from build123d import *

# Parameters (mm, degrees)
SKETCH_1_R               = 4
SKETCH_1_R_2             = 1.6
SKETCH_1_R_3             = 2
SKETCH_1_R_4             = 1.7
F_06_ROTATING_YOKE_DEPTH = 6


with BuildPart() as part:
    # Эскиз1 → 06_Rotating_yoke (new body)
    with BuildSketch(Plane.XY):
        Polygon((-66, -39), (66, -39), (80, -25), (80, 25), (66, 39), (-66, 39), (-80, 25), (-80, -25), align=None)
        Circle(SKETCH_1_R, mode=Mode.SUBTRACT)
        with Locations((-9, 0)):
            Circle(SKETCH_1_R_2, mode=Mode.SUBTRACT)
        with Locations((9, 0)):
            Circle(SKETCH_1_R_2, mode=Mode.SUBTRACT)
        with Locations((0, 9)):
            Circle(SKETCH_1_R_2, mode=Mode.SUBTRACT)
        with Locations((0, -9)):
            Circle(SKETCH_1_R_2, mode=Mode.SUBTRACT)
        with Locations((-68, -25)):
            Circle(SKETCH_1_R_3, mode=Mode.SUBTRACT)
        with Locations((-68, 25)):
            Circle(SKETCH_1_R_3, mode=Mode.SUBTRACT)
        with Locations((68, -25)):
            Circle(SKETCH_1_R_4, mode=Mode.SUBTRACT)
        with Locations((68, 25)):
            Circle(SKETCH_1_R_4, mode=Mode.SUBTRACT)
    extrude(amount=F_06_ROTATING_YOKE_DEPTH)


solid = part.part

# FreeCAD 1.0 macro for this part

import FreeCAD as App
import Part
import Sketcher
from FreeCAD import Vector
Q = App.Units.Quantity


def add_polygon(sketch, points):
    """Adds a closed chain of lines whose ends are joined by coincident constraints."""
    first, n = sketch.GeometryCount, len(points)
    for a, b in zip(points, points[1:] + points[:1]):
        sketch.addGeometry(Part.LineSegment(App.Vector(*a, 0), App.Vector(*b, 0)), False)
    for i in range(n):
        sketch.addConstraint(Sketcher.Constraint("Coincident", first + i, 2, first + (i + 1) % n, 1))

doc = App.newDocument("Part")
body = doc.addObject("PartDesign::Body", "Body")

# Sketch on XY plane
sketch1 = body.newObject("Sketcher::SketchObject", "Sketch")
sketch1.AttachmentSupport = (doc.getObject("XY_Plane"), [""])
sketch1.MapMode = "FlatFace"
add_polygon(sketch1, [(-66, -39), (66, -39), (80, -25), (80, 25), (66, 39), (-66, 39), (-80, 25), (-80, -25)])  # lines 0-7
sketch1.addGeometry(Part.Circle(Vector(-68, -25, 0), Vector(0, 0, 1), 2), False)  # 8
sketch1.addGeometry(Part.Circle(Vector(68, -25, 0), Vector(0, 0, 1), 1.7), False)  # 9
sketch1.addGeometry(Part.Circle(Vector(0, -9, 0), Vector(0, 0, 1), 1.6), False)  # 10
sketch1.addGeometry(Part.Circle(Vector(-9, 0, 0), Vector(0, 0, 1), 1.6), False)  # 11
sketch1.addGeometry(Part.Circle(Vector(-68, 25, 0), Vector(0, 0, 1), 2), False)  # 12
sketch1.addGeometry(Part.Circle(Vector(0, 0, 0), Vector(0, 0, 1), 4), False)  # 13
sketch1.addGeometry(Part.Circle(Vector(9, 0, 0), Vector(0, 0, 1), 1.6), False)  # 14
sketch1.addGeometry(Part.Circle(Vector(0, 9, 0), Vector(0, 0, 1), 1.6), False)  # 15
sketch1.addGeometry(Part.Circle(Vector(68, 25, 0), Vector(0, 0, 1), 1.7), False)  # 16
sketch1.addConstraint([
    Sketcher.Constraint("Horizontal", 0),
    Sketcher.Constraint("Vertical", 2),
    Sketcher.Constraint("Horizontal", 4),
    Sketcher.Constraint("Vertical", 6),
    Sketcher.Constraint("Coincident", 13, 3, -1, 1),
    Sketcher.Constraint("Equal", 10, 11),
    Sketcher.Constraint("Equal", 8, 12),
    Sketcher.Constraint("Equal", 11, 14),
    Sketcher.Constraint("Equal", 14, 15),
    Sketcher.Constraint("Equal", 9, 16),
    Sketcher.Constraint("Symmetric", 9, 3, 12, 3, -1, 1),
    Sketcher.Constraint("Symmetric", 11, 3, 14, 3, -1, 1),
    Sketcher.Constraint("Symmetric", 10, 3, 15, 3, -1, 1),
    Sketcher.Constraint("Symmetric", 8, 3, 16, 3, -1, 1),
    Sketcher.Constraint("Symmetric", 0, 2, 4, 2, -1, 1),
    Sketcher.Constraint("Symmetric", 1, 2, 5, 2, -1, 1),
    Sketcher.Constraint("Symmetric", 8, 3, 9, 3, -2),
    Sketcher.Constraint("PointOnObject", 10, 3, -2),
    Sketcher.Constraint("PointOnObject", 11, 3, -1),
    Sketcher.Constraint("Perpendicular", 1, 3),
    Sketcher.Constraint("Perpendicular", 5, 7),
    Sketcher.Constraint("Horizontal", 9, 3, 1, 2),
    Sketcher.Constraint("Horizontal", 16, 3, 2, 2),
    Sketcher.Constraint("Horizontal", 1, 2, 6, 2),
    Sketcher.Constraint("Vertical", 0, 2, 3, 2),
    Sketcher.Constraint("Diameter", 8, Q("4 mm")),
    Sketcher.Constraint("Diameter", 13, Q("8 mm")),
    Sketcher.Constraint("Diameter", 9, Q("3.4 mm")),
    Sketcher.Constraint("Diameter", 10, Q("3.2 mm")),
    Sketcher.Constraint("DistanceX", 0, 1, 0, 2, Q("132 mm")),
    Sketcher.Constraint("DistanceY", 2, 1, 2, 2, Q("50 mm")),
    Sketcher.Constraint("DistanceX", 8, 3, -1, 1, Q("68 mm")),
    Sketcher.Constraint("DistanceY", 10, 3, -1, 1, Q("9 mm")),
    Sketcher.Constraint("DistanceX", 11, 3, -1, 1, Q("9 mm")),
    Sketcher.Constraint("DistanceY", 0, 2, -1, 1, Q("39 mm")),
])
pad1 = body.newObject("PartDesign::Pad", "Pad")
pad1.Profile = sketch1
pad1.Length = 6

doc.recompute()
